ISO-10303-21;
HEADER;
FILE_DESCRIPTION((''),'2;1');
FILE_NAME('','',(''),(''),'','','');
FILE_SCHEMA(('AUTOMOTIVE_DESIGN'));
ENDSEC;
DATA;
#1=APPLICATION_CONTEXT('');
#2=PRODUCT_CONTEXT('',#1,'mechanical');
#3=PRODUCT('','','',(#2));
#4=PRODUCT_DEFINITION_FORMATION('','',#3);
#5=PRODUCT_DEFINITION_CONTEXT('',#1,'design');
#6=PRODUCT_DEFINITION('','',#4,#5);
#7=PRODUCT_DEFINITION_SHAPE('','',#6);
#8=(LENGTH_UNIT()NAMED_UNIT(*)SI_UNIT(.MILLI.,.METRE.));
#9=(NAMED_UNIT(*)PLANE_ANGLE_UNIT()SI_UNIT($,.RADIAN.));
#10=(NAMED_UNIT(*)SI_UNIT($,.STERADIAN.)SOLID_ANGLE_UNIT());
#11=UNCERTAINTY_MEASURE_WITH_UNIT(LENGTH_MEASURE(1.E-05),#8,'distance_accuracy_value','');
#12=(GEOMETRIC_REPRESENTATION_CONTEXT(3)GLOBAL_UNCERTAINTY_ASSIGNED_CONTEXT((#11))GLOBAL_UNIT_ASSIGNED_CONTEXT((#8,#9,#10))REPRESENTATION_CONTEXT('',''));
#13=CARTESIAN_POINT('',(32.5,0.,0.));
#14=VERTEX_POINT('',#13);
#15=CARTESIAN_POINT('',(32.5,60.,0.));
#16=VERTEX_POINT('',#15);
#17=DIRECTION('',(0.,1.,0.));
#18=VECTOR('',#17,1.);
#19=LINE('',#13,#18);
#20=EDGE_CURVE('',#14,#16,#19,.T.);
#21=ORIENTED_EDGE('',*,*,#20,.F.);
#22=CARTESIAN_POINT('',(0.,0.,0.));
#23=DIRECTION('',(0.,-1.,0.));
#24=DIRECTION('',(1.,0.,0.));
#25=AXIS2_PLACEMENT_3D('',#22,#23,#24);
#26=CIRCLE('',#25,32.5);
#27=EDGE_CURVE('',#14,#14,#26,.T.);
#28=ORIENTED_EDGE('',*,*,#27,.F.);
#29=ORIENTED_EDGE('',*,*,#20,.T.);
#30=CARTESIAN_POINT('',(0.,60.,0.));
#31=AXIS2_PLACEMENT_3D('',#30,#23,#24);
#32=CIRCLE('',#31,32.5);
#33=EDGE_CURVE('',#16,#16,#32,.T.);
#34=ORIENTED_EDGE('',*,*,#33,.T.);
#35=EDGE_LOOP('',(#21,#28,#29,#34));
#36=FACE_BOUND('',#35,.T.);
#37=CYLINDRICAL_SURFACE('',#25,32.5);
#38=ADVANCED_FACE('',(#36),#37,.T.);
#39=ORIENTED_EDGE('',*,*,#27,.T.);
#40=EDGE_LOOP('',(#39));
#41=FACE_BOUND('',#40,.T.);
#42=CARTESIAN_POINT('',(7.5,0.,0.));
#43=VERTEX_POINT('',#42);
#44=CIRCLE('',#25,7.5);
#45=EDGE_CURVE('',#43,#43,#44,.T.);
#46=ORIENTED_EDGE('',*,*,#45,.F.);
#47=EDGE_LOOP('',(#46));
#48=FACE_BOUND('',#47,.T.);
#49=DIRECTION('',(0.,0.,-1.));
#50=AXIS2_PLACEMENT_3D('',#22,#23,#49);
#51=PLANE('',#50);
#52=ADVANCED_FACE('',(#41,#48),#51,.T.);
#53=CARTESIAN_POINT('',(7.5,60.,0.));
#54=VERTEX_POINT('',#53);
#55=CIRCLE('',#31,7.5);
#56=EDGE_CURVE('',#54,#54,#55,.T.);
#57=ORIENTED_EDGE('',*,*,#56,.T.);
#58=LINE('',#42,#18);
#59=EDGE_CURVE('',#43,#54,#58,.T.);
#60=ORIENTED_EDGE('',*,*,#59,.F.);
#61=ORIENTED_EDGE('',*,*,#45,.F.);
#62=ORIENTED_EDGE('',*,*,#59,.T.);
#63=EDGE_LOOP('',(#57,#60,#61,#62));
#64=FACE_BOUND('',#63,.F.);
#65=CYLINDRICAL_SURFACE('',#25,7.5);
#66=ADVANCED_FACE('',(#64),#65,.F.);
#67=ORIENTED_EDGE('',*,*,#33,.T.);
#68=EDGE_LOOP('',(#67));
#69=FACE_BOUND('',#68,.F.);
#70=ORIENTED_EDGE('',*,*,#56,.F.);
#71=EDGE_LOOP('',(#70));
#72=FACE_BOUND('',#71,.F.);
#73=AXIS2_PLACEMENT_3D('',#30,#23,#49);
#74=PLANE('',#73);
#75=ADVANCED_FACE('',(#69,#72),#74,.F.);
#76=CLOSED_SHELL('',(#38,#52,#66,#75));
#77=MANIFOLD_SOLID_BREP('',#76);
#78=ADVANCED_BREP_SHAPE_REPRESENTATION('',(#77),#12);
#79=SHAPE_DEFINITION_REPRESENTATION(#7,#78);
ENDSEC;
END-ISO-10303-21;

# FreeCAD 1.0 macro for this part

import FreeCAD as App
import Part
import Sketcher
from FreeCAD import Vector
Q = App.Units.Quantity

doc = App.newDocument("Part")
body = doc.addObject("PartDesign::Body", "Body")

# Sketch on XZ plane
sketch1 = doc.addObject("Sketcher::SketchObject", "Sketch")
body.addObject(sketch1)
sketch1.AttachmentSupport = (doc.XZ_Plane, [""])
sketch1.MapMode = "FlatFace"
sketch1.addGeometry([
    Part.Circle(Vector(0, 0, 0), Vector(0, 0, 1), 32),
    Part.Circle(Vector(0, 0, 0), Vector(0, 0, 1), 8),
], False)
sketch1.addConstraint([
    Sketcher.Constraint("Coincident", 0, 3, -1, 1),
    Sketcher.Constraint("Coincident", 1, 3, -1, 1),
    Sketcher.Constraint("Diameter", 0, Q("65 mm")),
    Sketcher.Constraint("Diameter", 1, Q("15 mm")),
])
pad1 = doc.addObject("PartDesign::Pad", "Pad")
body.addObject(pad1)
pad1.Profile = sketch1
pad1.Length = 60
pad1.Reversed = True

doc.recompute()
